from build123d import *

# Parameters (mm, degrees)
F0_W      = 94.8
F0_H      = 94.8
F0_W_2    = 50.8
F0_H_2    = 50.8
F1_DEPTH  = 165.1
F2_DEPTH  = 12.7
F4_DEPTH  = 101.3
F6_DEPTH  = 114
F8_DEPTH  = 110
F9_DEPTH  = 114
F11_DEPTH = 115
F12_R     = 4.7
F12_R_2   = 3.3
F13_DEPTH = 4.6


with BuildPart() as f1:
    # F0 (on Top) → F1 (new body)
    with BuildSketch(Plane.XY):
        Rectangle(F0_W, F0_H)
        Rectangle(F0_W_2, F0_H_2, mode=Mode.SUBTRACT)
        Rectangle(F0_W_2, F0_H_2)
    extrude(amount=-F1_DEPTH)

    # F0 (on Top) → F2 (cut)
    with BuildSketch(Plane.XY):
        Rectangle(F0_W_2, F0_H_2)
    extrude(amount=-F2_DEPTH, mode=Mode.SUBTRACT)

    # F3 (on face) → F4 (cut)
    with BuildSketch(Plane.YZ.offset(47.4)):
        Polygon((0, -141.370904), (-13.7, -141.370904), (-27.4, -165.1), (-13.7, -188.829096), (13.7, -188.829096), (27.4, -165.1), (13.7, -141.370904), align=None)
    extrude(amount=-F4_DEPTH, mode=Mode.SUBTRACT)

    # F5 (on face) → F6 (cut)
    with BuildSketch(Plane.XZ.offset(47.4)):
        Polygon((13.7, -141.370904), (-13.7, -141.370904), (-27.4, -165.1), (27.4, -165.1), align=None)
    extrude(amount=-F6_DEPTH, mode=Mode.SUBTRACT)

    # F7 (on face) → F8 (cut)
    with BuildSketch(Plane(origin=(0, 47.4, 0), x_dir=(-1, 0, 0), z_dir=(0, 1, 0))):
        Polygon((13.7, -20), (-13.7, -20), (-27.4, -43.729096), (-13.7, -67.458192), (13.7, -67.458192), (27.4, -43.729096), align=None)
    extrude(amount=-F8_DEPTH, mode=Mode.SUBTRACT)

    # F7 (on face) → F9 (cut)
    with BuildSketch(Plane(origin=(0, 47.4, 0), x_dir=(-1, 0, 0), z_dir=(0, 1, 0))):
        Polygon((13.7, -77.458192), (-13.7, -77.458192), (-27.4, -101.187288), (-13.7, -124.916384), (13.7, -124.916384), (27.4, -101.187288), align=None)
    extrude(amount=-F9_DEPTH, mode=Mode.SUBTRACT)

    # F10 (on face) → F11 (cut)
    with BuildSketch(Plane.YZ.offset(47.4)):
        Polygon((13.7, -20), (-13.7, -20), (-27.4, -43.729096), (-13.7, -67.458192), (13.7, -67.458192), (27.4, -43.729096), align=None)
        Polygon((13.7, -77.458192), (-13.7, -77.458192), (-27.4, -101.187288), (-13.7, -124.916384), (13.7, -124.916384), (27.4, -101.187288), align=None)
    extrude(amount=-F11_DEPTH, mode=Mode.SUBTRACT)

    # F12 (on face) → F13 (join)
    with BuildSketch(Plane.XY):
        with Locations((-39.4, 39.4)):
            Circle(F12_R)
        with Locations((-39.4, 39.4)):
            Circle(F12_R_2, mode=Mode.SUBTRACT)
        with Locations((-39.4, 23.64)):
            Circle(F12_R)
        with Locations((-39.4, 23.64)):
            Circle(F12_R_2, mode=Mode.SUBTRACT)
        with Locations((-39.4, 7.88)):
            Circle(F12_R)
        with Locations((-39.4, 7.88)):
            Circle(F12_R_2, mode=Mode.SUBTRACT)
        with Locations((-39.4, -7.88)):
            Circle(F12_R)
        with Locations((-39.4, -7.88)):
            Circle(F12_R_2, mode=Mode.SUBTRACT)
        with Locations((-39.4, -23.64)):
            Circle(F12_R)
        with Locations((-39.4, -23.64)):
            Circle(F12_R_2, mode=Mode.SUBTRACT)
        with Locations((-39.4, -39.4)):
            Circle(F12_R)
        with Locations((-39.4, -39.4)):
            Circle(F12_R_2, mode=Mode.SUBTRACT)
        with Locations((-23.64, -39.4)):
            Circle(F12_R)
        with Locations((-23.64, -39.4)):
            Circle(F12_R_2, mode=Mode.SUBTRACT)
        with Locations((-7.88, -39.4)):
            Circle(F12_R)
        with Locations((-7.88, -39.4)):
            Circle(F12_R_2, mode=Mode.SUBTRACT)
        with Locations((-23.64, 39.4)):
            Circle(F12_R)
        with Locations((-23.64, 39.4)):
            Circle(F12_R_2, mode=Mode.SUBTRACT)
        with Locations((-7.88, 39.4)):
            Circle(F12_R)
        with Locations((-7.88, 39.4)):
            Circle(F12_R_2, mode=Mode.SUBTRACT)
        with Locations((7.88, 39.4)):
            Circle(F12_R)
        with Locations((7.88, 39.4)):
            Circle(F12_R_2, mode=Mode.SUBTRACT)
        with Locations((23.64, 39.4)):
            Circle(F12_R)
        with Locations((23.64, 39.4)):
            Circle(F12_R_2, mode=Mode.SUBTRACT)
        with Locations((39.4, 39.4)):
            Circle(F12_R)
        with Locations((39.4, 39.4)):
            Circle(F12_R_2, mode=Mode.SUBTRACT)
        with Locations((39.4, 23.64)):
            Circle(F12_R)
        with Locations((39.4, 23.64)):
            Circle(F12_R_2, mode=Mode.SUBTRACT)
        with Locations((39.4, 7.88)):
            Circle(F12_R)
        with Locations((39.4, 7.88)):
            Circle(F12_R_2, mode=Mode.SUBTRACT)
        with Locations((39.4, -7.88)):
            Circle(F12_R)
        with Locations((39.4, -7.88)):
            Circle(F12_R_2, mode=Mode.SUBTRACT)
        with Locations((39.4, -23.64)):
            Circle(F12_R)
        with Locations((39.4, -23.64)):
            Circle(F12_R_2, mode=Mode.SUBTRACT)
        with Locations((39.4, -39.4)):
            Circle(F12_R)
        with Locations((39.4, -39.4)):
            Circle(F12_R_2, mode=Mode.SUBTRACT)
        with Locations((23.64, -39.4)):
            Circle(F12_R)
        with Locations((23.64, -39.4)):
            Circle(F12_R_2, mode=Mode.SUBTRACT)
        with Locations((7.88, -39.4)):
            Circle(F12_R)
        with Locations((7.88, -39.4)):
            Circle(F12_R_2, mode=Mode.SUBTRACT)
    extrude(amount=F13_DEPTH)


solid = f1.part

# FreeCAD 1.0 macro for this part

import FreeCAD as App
import Part
import Sketcher

V = App.Vector
Q = App.Units.Quantity


def add_polygon(sketch, points):
    """Adds a closed chain of lines whose ends are joined by coincident constraints."""
    first, n = sketch.GeometryCount, len(points)
    for a, b in zip(points, points[1:] + points[:1]):
        sketch.addGeometry(Part.LineSegment(App.Vector(*a, 0), App.Vector(*b, 0)), False)
    for i in range(n):
        sketch.addConstraint(Sketcher.Constraint("Coincident", first + i, 2, first + (i + 1) % n, 1))

doc = App.newDocument("Part")
body = doc.addObject("PartDesign::Body", "Body")

sketch1 = body.newObject("Sketcher::SketchObject", "Sketch")
sketch1.AttachmentSupport = (doc.getObject("XY_Plane"), [""])
sketch1.MapMode = "FlatFace"
add_polygon(sketch1, [(-47, 47), (-47, -47), (47, -47), (47, 47)])
sketch1.addConstraint([
    Sketcher.Constraint("Vertical", 0),
    Sketcher.Constraint("Horizontal", 1),
    Sketcher.Constraint("Vertical", 2),
    Sketcher.Constraint("Horizontal", 3),
    Sketcher.Constraint("Symmetric", 0, 2, 2, 2, -1, 1),
    Sketcher.Constraint("Equal", 3, 0),
    Sketcher.Constraint("DistanceX", 1, 1, 1, 2, Q("94.8 mm")),
])
pad1 = body.newObject("PartDesign::Pad", "Pad")
pad1.Profile = sketch1
pad1.Length = 165.1
pad1.Reversed = True

sketch2 = body.newObject("Sketcher::SketchObject", "Sketch001")
sketch2.AttachmentSupport = (doc.getObject("XY_Plane"), [""])
sketch2.MapMode = "FlatFace"
add_polygon(sketch2, [(-25, 25), (-25, -25), (25, -25), (25, 25)])
sketch2.addConstraint([
    Sketcher.Constraint("Vertical", 0),
    Sketcher.Constraint("Horizontal", 1),
    Sketcher.Constraint("Vertical", 2),
    Sketcher.Constraint("Horizontal", 3),
    Sketcher.Constraint("Symmetric", 0, 2, 2, 2, -1, 1),
    Sketcher.Constraint("Equal", 3, 0),
    Sketcher.Constraint("DistanceX", 1, 1, 1, 2, Q("50.8 mm")),
])
pocket1 = body.newObject("PartDesign::Pocket", "Pocket")
pocket1.Profile = sketch2
pocket1.Length = 12.7

sketch3 = body.newObject("Sketcher::SketchObject", "Sketch002")
sketch3.AttachmentSupport = (doc.getObject("YZ_Plane"), [""])
sketch3.MapMode = "FlatFace"
sketch3.AttachmentOffset = App.Placement(V(0, 0, 47.4), App.Rotation())
add_polygon(sketch3, [(-14, -141), (-27, -165), (-14, -189), (14, -189), (27, -165), (14, -141)])
sketch3.addConstraint([
    Sketcher.Constraint("Horizontal", 2),
    Sketcher.Constraint("Horizontal", 5),
    Sketcher.Constraint("Symmetric", 0, 2, 3, 2, -2),
    Sketcher.Constraint("Parallel", 0, 3),
    Sketcher.Constraint("Parallel", 1, 4),
    Sketcher.Constraint("Vertical", 2, 2, 4, 2),
    Sketcher.Constraint("Vertical", 1, 2, 5, 2),
    Sketcher.Constraint("Angle", 0, Q("-120 deg")),
    Sketcher.Constraint("DistanceX", 2, 1, 2, 2, Q("27.4 mm")),
    Sketcher.Constraint("Distance", 0, Q("27.4 mm")),
    Sketcher.Constraint("DistanceY", 0, 2, -1, 1, Q("165.1 mm")),
])
pocket2 = body.newObject("PartDesign::Pocket", "Pocket001")
pocket2.Profile = sketch3
pocket2.Length = 101.3

sketch4 = body.newObject("Sketcher::SketchObject", "Sketch003")
sketch4.AttachmentSupport = (doc.getObject("XZ_Plane"), [""])
sketch4.MapMode = "FlatFace"
sketch4.AttachmentOffset = App.Placement(V(0, 0, 47.4), App.Rotation())
add_polygon(sketch4, [(14, -141), (-14, -141), (-27, -165), (27, -165)])
sketch4.addConstraint([
    Sketcher.Constraint("Horizontal", 0),
    Sketcher.Constraint("Horizontal", 2),
    Sketcher.Constraint("Equal", 1, 3),
    Sketcher.Constraint("Angle", 1, Q("-120 deg")),
    Sketcher.Constraint("DistanceX", 0, 2, 0, 1, Q("27.4 mm")),
    Sketcher.Constraint("DistanceX", 2, 1, 2, 2, Q("54.8 mm")),
    Sketcher.Constraint("DistanceX", 0, 2, -1, 1, Q("13.7 mm")),
    Sketcher.Constraint("DistanceY", 1, 2, -1, 1, Q("165.1 mm")),
])
pocket3 = body.newObject("PartDesign::Pocket", "Pocket002")
pocket3.Profile = sketch4
pocket3.Length = 114

sketch5 = body.newObject("Sketcher::SketchObject", "Sketch004")
sketch5.AttachmentSupport = (doc.getObject("XZ_Plane"), [""])
sketch5.MapMode = "FlatFace"
sketch5.AttachmentOffset = App.Placement(V(0, 0, -47.4), App.Rotation())
add_polygon(sketch5, [(-14, -20), (14, -20), (27, -44), (14, -67), (-14, -67), (-27, -44)])
sketch5.addConstraint([
    Sketcher.Constraint("Horizontal", 0),
    Sketcher.Constraint("Horizontal", 3),
    Sketcher.Constraint("Symmetric", 1, 2, 4, 2, -2),
    Sketcher.Constraint("Parallel", 1, 4),
    Sketcher.Constraint("Parallel", 2, 5),
    Sketcher.Constraint("Vertical", 0, 2, 2, 2),
    Sketcher.Constraint("Vertical", 3, 2, 5, 2),
    Sketcher.Constraint("Angle", 1, Q("-60 deg")),
    Sketcher.Constraint("DistanceX", 0, 1, 0, 2, Q("27.4 mm")),
    Sketcher.Constraint("DistanceY", 0, 2, -1, 1, Q("20 mm")),
    Sketcher.Constraint("Distance", 1, Q("27.4 mm")),
])
pocket4 = body.newObject("PartDesign::Pocket", "Pocket003")
pocket4.Profile = sketch5
pocket4.Length = 110
pocket4.Reversed = True

sketch6 = body.newObject("Sketcher::SketchObject", "Sketch005")
sketch6.AttachmentSupport = (doc.getObject("XZ_Plane"), [""])
sketch6.MapMode = "FlatFace"
sketch6.AttachmentOffset = App.Placement(V(0, 0, -47.4), App.Rotation())
add_polygon(sketch6, [(-14, -77), (14, -77), (27, -101), (14, -125), (-14, -125), (-27, -101)])
sketch6.addConstraint([
    Sketcher.Constraint("Horizontal", 0),
    Sketcher.Constraint("Horizontal", 3),
    Sketcher.Constraint("Symmetric", 1, 2, 4, 2, -2),
    Sketcher.Constraint("Parallel", 1, 4),
    Sketcher.Constraint("Parallel", 2, 5),
    Sketcher.Constraint("Vertical", 0, 2, 2, 2),
    Sketcher.Constraint("Vertical", 3, 2, 5, 2),
    Sketcher.Constraint("Angle", 1, Q("-60 deg")),
    Sketcher.Constraint("DistanceX", 0, 1, 0, 2, Q("27.4 mm")),
    Sketcher.Constraint("Distance", 1, Q("27.4 mm")),
    Sketcher.Constraint("DistanceY", 0, 2, -1, 1, Q("77.458192 mm")),
])
pocket5 = body.newObject("PartDesign::Pocket", "Pocket004")
pocket5.Profile = sketch6
pocket5.Length = 114
pocket5.Reversed = True

sketch7 = body.newObject("Sketcher::SketchObject", "Sketch006")
sketch7.AttachmentSupport = (doc.getObject("YZ_Plane"), [""])
sketch7.MapMode = "FlatFace"
sketch7.AttachmentOffset = App.Placement(V(0, 0, 47.4), App.Rotation())
add_polygon(sketch7, [(14, -20), (-14, -20), (-27, -44), (-14, -67), (14, -67), (27, -44)])
add_polygon(sketch7, [(14, -77), (-14, -77), (-27, -101), (-14, -125), (14, -125), (27, -101)])
sketch7.addConstraint([
    Sketcher.Constraint("Horizontal", 0),
    Sketcher.Constraint("Horizontal", 3),
    Sketcher.Constraint("Horizontal", 6),
    Sketcher.Constraint("Horizontal", 9),
    Sketcher.Constraint("Symmetric", 1, 2, 4, 2, -2),
    Sketcher.Constraint("Symmetric", 7, 2, 10, 2, -2),
    Sketcher.Constraint("Parallel", 1, 4),
    Sketcher.Constraint("Parallel", 2, 5),
    Sketcher.Constraint("Parallel", 4, 7),
    Sketcher.Constraint("Parallel", 5, 8),
    Sketcher.Constraint("Parallel", 7, 10),
    Sketcher.Constraint("Parallel", 8, 11),
    Sketcher.Constraint("Vertical", 0, 2, 2, 2),
    Sketcher.Constraint("Vertical", 3, 2, 5, 2),
    Sketcher.Constraint("Vertical", 2, 2, 6, 2),
    Sketcher.Constraint("Vertical", 1, 2, 7, 2),
    Sketcher.Constraint("Vertical", 6, 2, 8, 2),
    Sketcher.Constraint("Angle", 1, Q("-120 deg")),
    Sketcher.Constraint("DistanceX", 0, 2, 0, 1, Q("27.4 mm")),
    Sketcher.Constraint("DistanceY", 0, 2, -1, 1, Q("20 mm")),
    Sketcher.Constraint("DistanceY", 6, 2, 2, 2, Q("10 mm")),
    Sketcher.Constraint("Distance", 1, Q("27.4 mm")),
])
pocket6 = body.newObject("PartDesign::Pocket", "Pocket005")
pocket6.Profile = sketch7
pocket6.Length = 115

sketch8 = body.newObject("Sketcher::SketchObject", "Sketch007")
sketch8.AttachmentSupport = (doc.getObject("XY_Plane"), [""])
sketch8.MapMode = "FlatFace"
sketch8.addGeometry([
    Part.Circle(V(-39.4, 39.4, 0), V(0, 0, 1), 4.7),
    Part.Circle(V(-39.4, 39.4, 0), V(0, 0, 1), 3.3),
    Part.Circle(V(-39.4, 23.6, 0), V(0, 0, 1), 4.7),
    Part.Circle(V(-39.4, 23.6, 0), V(0, 0, 1), 3.3),
    Part.Circle(V(-39.4, 7.9, 0), V(0, 0, 1), 4.7),
    Part.Circle(V(-39.4, 7.9, 0), V(0, 0, 1), 3.3),
    Part.Circle(V(-39.4, -7.9, 0), V(0, 0, 1), 4.7),
    Part.Circle(V(-39.4, -7.9, 0), V(0, 0, 1), 3.3),
    Part.Circle(V(-39.4, -23.6, 0), V(0, 0, 1), 4.7),
    Part.Circle(V(-39.4, -23.6, 0), V(0, 0, 1), 3.3),
    Part.Circle(V(-39.4, -39.4, 0), V(0, 0, 1), 4.7),
    Part.Circle(V(-39.4, -39.4, 0), V(0, 0, 1), 3.3),
    Part.Circle(V(-23.6, -39.4, 0), V(0, 0, 1), 4.7),
    Part.Circle(V(-23.6, -39.4, 0), V(0, 0, 1), 3.3),
    Part.Circle(V(-7.9, -39.4, 0), V(0, 0, 1), 4.7),
    Part.Circle(V(-7.9, -39.4, 0), V(0, 0, 1), 3.3),
    Part.Circle(V(-23.6, 39.4, 0), V(0, 0, 1), 4.7),
    Part.Circle(V(-23.6, 39.4, 0), V(0, 0, 1), 3.3),
    Part.Circle(V(-7.9, 39.4, 0), V(0, 0, 1), 4.7),
    Part.Circle(V(-7.9, 39.4, 0), V(0, 0, 1), 3.3),
    Part.Circle(V(7.9, 39.4, 0), V(0, 0, 1), 4.7),
    Part.Circle(V(7.9, 39.4, 0), V(0, 0, 1), 3.3),
    Part.Circle(V(23.6, 39.4, 0), V(0, 0, 1), 4.7),
    Part.Circle(V(23.6, 39.4, 0), V(0, 0, 1), 3.3),
    Part.Circle(V(39.4, 39.4, 0), V(0, 0, 1), 4.7),
    Part.Circle(V(39.4, 39.4, 0), V(0, 0, 1), 3.3),
    Part.Circle(V(39.4, 23.6, 0), V(0, 0, 1), 4.7),
    Part.Circle(V(39.4, 23.6, 0), V(0, 0, 1), 3.3),
    Part.Circle(V(39.4, 7.9, 0), V(0, 0, 1), 4.7),
    Part.Circle(V(39.4, 7.9, 0), V(0, 0, 1), 3.3),
    Part.Circle(V(39.4, -7.9, 0), V(0, 0, 1), 4.7),
    Part.Circle(V(39.4, -7.9, 0), V(0, 0, 1), 3.3),
    Part.Circle(V(39.4, -23.6, 0), V(0, 0, 1), 4.7),
    Part.Circle(V(39.4, -23.6, 0), V(0, 0, 1), 3.3),
    Part.Circle(V(39.4, -39.4, 0), V(0, 0, 1), 4.7),
    Part.Circle(V(39.4, -39.4, 0), V(0, 0, 1), 3.3),
    Part.Circle(V(23.6, -39.4, 0), V(0, 0, 1), 4.7),
    Part.Circle(V(23.6, -39.4, 0), V(0, 0, 1), 3.3),
    Part.Circle(V(7.9, -39.4, 0), V(0, 0, 1), 4.7),
    Part.Circle(V(7.9, -39.4, 0), V(0, 0, 1), 3.3),
], False)
sketch8.addConstraint([
    Sketcher.Constraint("Coincident", 1, 3, 0, 3),
    Sketcher.Constraint("Coincident", 3, 3, 2, 3),
    Sketcher.Constraint("Coincident", 5, 3, 4, 3),
    Sketcher.Constraint("Coincident", 7, 3, 6, 3),
    Sketcher.Constraint("Coincident", 9, 3, 8, 3),
    Sketcher.Constraint("Coincident", 11, 3, 10, 3),
    Sketcher.Constraint("Coincident", 13, 3, 12, 3),
    Sketcher.Constraint("Coincident", 15, 3, 14, 3),
    Sketcher.Constraint("Coincident", 17, 3, 16, 3),
    Sketcher.Constraint("Coincident", 19, 3, 18, 3),
    Sketcher.Constraint("Coincident", 21, 3, 20, 3),
    Sketcher.Constraint("Coincident", 23, 3, 22, 3),
    Sketcher.Constraint("Coincident", 25, 3, 24, 3),
    Sketcher.Constraint("Coincident", 27, 3, 26, 3),
    Sketcher.Constraint("Coincident", 29, 3, 28, 3),
    Sketcher.Constraint("Coincident", 31, 3, 30, 3),
    Sketcher.Constraint("Coincident", 33, 3, 32, 3),
    Sketcher.Constraint("Coincident", 35, 3, 34, 3),
    Sketcher.Constraint("Coincident", 37, 3, 36, 3),
    Sketcher.Constraint("Coincident", 39, 3, 38, 3),
    Sketcher.Constraint("Equal", 0, 2),
    Sketcher.Constraint("Equal", 1, 3),
    Sketcher.Constraint("Equal", 2, 4),
    Sketcher.Constraint("Equal", 3, 5),
    Sketcher.Constraint("Equal", 4, 6),
    Sketcher.Constraint("Equal", 5, 7),
    Sketcher.Constraint("Equal", 6, 8),
    Sketcher.Constraint("Equal", 7, 9),
    Sketcher.Constraint("Equal", 8, 10),
    Sketcher.Constraint("Equal", 9, 11),
    Sketcher.Constraint("Equal", 10, 12),
    Sketcher.Constraint("Equal", 11, 13),
    Sketcher.Constraint("Equal", 12, 14),
    Sketcher.Constraint("Equal", 13, 15),
    Sketcher.Constraint("Equal", 14, 16),
    Sketcher.Constraint("Equal", 15, 17),
    Sketcher.Constraint("Equal", 16, 18),
    Sketcher.Constraint("Equal", 17, 19),
    Sketcher.Constraint("Equal", 18, 20),
    Sketcher.Constraint("Equal", 19, 21),
    Sketcher.Constraint("Equal", 20, 22),
    Sketcher.Constraint("Equal", 21, 23),
    Sketcher.Constraint("Equal", 22, 24),
    Sketcher.Constraint("Equal", 23, 25),
    Sketcher.Constraint("Equal", 24, 26),
    Sketcher.Constraint("Equal", 25, 27),
    Sketcher.Constraint("Equal", 26, 28),
    Sketcher.Constraint("Equal", 27, 29),
    Sketcher.Constraint("Equal", 28, 30),
    Sketcher.Constraint("Equal", 29, 31),
    Sketcher.Constraint("Equal", 30, 32),
    Sketcher.Constraint("Equal", 31, 33),
    Sketcher.Constraint("Equal", 32, 34),
    Sketcher.Constraint("Equal", 33, 35),
    Sketcher.Constraint("Equal", 34, 36),
    Sketcher.Constraint("Equal", 35, 37),
    Sketcher.Constraint("Equal", 36, 38),
    Sketcher.Constraint("Equal", 37, 39),
    Sketcher.Constraint("Symmetric", 14, 3, 20, 3, -1, 1),
    Sketcher.Constraint("Symmetric", 12, 3, 22, 3, -1, 1),
    Sketcher.Constraint("Symmetric", 10, 3, 24, 3, -1, 1),
    Sketcher.Constraint("Symmetric", 8, 3, 26, 3, -1, 1),
    Sketcher.Constraint("Symmetric", 6, 3, 28, 3, -1, 1),
    Sketcher.Constraint("Symmetric", 4, 3, 30, 3, -1, 1),
    Sketcher.Constraint("Symmetric", 2, 3, 32, 3, -1, 1),
    Sketcher.Constraint("Symmetric", 0, 3, 34, 3, -1, 1),
    Sketcher.Constraint("Symmetric", 16, 3, 36, 3, -1, 1),
    Sketcher.Constraint("Symmetric", 18, 3, 38, 3, -1, 1),
    Sketcher.Constraint("Symmetric", 18, 3, 20, 3, -2),
    Sketcher.Constraint("Symmetric", 16, 3, 22, 3, -2),
    Sketcher.Constraint("Symmetric", 0, 3, 24, 3, -2),
    Sketcher.Constraint("Symmetric", 2, 3, 26, 3, -2),
    Sketcher.Constraint("Symmetric", 4, 3, 28, 3, -2),
    Sketcher.Constraint("Horizontal", 11, 3, 12, 3),
    Sketcher.Constraint("Horizontal", 13, 3, 14, 3),
    Sketcher.Constraint("Vertical", 1, 3, 2, 3),
    Sketcher.Constraint("Vertical", 3, 3, 4, 3),
    Sketcher.Constraint("Diameter", 0, Q("9.4 mm")),
    Sketcher.Constraint("Diameter", 1, Q("6.6 mm")),
    Sketcher.Constraint("DistanceX", 0, 3, -1, 1, Q("39.4 mm")),
    Sketcher.Constraint("DistanceY", -1, 1, 0, 3, Q("39.4 mm")),
    Sketcher.Constraint("DistanceY", -1, 1, 2, 3, Q("23.64 mm")),
    Sketcher.Constraint("DistanceY", -1, 1, 4, 3, Q("7.88 mm")),
    Sketcher.Constraint("DistanceX", 12, 3, -1, 1, Q("23.64 mm")),
    Sketcher.Constraint("DistanceX", 14, 3, -1, 1, Q("7.88 mm")),
])
pad2 = body.newObject("PartDesign::Pad", "Pad001")
pad2.Profile = sketch8
pad2.Length = 4.6

doc.recompute()
